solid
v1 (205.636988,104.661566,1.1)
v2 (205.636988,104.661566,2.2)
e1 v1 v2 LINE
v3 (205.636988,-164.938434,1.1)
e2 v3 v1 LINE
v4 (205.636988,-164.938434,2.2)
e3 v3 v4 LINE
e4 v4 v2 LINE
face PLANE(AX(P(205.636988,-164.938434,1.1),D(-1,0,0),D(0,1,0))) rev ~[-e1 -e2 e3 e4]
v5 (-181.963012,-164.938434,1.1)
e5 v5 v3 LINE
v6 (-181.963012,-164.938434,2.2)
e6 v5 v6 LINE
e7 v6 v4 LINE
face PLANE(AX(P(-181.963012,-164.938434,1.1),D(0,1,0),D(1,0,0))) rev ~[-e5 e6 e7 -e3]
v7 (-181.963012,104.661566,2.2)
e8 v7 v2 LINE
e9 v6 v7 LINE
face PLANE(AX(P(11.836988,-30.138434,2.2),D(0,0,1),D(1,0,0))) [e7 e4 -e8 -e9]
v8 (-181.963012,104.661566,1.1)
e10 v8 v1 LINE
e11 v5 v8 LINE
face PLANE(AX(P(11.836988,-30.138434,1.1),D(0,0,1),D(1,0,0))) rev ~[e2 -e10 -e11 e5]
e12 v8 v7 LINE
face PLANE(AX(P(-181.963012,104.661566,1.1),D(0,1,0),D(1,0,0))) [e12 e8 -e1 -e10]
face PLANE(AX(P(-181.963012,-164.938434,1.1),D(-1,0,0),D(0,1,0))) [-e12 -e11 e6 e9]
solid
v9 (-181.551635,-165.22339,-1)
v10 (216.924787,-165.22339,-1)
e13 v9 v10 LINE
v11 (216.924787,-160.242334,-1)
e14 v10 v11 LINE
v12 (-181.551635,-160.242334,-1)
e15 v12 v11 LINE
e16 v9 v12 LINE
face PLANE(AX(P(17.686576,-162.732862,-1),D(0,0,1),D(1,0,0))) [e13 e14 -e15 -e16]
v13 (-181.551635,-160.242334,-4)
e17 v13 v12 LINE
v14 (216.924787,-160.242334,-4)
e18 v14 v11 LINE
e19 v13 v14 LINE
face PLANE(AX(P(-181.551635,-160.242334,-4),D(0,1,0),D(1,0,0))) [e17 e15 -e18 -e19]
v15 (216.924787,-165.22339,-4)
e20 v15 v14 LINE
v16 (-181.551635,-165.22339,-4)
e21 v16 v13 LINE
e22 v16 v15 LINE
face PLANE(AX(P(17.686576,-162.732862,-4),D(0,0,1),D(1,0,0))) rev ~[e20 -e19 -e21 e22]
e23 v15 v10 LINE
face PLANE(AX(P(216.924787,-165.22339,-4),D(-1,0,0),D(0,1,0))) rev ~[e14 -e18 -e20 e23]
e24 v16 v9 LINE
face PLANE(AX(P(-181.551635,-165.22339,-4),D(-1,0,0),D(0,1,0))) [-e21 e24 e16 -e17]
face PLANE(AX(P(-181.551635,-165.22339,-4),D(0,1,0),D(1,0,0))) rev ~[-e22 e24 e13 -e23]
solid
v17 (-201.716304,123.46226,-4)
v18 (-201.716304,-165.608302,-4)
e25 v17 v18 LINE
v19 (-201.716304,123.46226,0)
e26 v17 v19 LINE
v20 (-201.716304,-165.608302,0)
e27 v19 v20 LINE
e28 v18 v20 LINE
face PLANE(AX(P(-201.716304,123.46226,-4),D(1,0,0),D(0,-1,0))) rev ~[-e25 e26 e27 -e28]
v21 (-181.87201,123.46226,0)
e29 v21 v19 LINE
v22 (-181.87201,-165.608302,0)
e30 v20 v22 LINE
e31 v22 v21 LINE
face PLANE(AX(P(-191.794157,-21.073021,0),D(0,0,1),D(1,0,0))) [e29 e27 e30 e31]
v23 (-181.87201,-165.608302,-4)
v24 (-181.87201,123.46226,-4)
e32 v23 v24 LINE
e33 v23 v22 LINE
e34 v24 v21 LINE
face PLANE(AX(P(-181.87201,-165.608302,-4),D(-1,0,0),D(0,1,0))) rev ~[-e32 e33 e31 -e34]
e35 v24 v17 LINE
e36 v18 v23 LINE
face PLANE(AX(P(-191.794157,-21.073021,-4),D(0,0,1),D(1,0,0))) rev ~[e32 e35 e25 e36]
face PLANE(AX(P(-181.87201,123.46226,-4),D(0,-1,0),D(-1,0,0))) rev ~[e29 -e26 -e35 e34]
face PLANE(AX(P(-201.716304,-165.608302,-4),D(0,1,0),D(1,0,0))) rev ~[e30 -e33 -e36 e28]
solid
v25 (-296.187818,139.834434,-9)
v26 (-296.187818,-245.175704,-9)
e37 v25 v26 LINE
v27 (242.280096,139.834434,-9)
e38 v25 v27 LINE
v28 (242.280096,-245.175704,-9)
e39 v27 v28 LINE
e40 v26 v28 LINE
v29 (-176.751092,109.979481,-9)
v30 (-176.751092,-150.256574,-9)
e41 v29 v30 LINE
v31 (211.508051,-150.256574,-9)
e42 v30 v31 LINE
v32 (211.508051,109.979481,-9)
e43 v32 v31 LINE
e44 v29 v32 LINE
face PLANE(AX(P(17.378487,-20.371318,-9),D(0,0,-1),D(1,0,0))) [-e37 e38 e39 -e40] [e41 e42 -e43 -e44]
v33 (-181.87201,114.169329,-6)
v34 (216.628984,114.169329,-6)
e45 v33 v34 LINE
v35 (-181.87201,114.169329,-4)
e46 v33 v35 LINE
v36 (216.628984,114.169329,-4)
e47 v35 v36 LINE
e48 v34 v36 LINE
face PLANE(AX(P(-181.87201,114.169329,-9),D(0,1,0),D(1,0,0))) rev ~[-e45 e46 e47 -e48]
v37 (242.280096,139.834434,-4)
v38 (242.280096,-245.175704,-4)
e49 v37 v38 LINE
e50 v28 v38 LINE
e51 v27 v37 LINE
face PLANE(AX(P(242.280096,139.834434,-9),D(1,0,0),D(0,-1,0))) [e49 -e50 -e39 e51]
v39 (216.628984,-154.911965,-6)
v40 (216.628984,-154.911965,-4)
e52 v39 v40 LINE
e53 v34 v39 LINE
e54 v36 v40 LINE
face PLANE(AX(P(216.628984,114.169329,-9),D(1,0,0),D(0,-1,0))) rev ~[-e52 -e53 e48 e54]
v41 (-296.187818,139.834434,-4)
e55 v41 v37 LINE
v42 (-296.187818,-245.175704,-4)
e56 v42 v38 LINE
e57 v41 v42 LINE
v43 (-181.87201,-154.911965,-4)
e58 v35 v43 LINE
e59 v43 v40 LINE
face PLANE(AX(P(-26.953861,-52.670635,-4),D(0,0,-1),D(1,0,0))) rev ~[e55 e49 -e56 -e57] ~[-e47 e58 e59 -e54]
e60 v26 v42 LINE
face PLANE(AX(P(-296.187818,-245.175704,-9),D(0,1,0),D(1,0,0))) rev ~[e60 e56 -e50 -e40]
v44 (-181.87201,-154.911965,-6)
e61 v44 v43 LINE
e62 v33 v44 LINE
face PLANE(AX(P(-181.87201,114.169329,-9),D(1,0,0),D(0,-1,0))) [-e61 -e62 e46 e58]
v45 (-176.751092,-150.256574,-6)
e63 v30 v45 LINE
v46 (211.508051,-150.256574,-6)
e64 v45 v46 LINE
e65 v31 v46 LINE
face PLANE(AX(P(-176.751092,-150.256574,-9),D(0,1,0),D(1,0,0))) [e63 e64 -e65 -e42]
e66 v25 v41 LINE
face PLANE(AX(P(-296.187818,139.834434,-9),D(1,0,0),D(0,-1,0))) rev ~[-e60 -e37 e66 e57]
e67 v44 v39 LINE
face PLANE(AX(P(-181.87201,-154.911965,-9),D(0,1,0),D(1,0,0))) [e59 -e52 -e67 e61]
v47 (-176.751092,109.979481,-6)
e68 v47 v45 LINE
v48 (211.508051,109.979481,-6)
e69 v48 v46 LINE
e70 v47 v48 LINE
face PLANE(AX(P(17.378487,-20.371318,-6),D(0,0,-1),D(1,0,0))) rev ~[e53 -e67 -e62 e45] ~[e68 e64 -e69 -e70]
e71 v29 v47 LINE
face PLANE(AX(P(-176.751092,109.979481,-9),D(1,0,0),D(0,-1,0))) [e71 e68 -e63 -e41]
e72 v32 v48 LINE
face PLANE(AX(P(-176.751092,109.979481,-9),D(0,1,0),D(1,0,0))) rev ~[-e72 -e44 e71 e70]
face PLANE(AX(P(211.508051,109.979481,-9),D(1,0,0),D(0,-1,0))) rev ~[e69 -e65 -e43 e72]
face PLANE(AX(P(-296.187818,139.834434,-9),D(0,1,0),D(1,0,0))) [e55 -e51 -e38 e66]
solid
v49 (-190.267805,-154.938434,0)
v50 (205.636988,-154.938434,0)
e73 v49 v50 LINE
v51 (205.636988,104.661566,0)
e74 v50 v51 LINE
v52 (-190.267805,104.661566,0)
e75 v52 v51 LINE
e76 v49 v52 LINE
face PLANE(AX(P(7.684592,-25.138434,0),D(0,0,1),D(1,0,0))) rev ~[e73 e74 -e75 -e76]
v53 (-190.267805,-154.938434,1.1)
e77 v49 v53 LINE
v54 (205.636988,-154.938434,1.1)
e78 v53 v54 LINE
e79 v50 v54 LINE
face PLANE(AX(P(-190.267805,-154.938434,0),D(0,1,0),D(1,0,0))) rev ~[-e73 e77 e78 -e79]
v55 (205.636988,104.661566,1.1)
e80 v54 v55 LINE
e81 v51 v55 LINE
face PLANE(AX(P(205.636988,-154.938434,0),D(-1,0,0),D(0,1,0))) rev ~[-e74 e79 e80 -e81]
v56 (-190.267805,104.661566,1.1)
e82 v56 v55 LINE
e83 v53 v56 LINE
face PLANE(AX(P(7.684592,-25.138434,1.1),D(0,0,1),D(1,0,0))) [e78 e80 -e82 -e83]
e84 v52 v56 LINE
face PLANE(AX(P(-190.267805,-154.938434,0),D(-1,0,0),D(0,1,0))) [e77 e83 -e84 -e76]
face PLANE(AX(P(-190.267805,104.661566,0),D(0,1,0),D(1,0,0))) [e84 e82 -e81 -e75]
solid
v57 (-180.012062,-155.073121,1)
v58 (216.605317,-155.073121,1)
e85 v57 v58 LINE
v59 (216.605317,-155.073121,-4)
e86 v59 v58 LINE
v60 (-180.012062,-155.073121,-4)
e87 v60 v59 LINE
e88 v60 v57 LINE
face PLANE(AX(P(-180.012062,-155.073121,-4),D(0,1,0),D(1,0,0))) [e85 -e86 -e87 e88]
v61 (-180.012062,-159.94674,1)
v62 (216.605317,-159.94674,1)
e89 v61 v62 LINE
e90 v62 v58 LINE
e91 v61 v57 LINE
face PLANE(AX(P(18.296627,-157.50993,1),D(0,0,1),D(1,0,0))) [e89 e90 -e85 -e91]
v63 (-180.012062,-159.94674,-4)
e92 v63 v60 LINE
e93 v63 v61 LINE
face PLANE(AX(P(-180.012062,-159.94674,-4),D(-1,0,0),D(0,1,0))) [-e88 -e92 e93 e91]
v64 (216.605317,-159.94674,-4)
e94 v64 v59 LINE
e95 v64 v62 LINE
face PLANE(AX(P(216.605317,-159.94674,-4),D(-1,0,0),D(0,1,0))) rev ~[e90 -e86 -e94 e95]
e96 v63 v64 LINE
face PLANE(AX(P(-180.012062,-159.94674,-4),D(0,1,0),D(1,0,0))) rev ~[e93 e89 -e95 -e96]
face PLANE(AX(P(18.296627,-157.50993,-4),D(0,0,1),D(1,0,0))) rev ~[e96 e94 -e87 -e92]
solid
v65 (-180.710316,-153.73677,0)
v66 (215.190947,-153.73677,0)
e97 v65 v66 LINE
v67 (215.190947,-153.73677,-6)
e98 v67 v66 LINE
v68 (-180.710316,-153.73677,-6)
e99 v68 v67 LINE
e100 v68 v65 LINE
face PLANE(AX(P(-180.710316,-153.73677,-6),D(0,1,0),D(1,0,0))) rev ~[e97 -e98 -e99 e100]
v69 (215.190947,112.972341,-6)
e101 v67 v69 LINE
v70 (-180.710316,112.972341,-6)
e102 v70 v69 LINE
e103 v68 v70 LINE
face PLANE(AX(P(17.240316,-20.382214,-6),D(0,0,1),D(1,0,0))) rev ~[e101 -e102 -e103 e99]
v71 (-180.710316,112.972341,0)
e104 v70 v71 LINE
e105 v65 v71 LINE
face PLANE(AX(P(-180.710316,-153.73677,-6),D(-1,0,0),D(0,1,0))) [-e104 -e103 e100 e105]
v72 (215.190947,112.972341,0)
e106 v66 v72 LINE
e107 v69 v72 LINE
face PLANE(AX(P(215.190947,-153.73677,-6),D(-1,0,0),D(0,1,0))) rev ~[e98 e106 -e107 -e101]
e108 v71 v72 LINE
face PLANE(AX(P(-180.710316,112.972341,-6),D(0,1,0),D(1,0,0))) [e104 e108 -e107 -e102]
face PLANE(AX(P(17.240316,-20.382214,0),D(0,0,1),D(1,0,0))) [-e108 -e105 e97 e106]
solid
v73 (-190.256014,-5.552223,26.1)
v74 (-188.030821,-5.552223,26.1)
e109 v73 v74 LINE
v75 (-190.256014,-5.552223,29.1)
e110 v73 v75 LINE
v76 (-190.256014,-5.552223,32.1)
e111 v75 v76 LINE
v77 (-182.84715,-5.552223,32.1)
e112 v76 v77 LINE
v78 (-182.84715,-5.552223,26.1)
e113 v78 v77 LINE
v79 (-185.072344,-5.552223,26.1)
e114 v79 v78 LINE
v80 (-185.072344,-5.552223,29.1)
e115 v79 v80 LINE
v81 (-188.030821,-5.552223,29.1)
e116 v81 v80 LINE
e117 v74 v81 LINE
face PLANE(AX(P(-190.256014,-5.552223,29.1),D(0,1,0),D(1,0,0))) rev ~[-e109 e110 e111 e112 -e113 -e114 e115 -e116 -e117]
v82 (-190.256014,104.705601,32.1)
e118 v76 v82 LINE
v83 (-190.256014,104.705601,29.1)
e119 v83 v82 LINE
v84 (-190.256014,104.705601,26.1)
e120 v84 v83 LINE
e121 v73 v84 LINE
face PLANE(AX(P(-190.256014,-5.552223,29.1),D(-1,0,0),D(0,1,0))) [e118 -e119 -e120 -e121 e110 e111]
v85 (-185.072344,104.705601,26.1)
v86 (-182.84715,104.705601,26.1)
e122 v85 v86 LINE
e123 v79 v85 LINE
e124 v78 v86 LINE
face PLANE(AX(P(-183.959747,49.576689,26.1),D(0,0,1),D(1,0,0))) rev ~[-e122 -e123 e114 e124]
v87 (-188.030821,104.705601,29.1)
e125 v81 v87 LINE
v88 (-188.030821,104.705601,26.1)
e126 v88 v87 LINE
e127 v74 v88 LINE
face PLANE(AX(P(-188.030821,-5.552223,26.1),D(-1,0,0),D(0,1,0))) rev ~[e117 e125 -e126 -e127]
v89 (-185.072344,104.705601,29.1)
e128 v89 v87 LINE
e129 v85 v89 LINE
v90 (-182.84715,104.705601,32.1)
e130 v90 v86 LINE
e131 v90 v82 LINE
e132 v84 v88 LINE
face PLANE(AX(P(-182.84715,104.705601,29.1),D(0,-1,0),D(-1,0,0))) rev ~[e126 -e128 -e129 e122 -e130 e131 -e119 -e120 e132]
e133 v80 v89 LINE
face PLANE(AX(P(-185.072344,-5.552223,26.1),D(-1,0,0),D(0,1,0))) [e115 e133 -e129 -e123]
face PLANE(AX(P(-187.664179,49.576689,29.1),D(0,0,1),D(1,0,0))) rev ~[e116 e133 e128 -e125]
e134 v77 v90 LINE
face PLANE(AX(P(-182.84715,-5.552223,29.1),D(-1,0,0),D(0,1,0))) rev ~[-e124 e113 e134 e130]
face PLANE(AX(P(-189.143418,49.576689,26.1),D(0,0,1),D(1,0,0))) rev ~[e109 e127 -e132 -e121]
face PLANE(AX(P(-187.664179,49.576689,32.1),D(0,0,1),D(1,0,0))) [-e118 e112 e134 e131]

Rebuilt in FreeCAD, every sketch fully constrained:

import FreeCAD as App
import Part
import Sketcher
Q = App.Units.Quantity


def add_polygon(sketch, points):
    """Adds a closed chain of lines whose ends are joined by coincident constraints."""
    first, n = sketch.GeometryCount, len(points)
    for a, b in zip(points, points[1:] + points[:1]):
        sketch.addGeometry(Part.LineSegment(App.Vector(*a, 0), App.Vector(*b, 0)), False)
    for i in range(n):
        sketch.addConstraint(Sketcher.Constraint("Coincident", first + i, 2, first + (i + 1) % n, 1))

doc = App.newDocument("Part")
params = doc.addObject("Spreadsheet::Sheet", "Params")
for row, (alias, value) in enumerate([
    ("sketch1_height", "259.6 mm"),
    ("pad1_length", "1.1 mm"),
    ("sketch2_width", "387.6 mm"),
    ("sketch2_height", "269.6 mm"),
    ("pad2_length", "1.1 mm"),
    ("pad3_length", "5 mm"),
    ("pad4_length", "3 mm"),
    ("pad5_length", "4 mm"),
    ("pad6_length", "3 mm"),
    ("pad7_length", "6 mm"),
    ("pad8_length", "5 mm"),
    ("pad9_length", "3 mm"),
    ("pad10_length", "3 mm"),
    ("pad11_length", "3 mm"),
], start=1):
    params.set(f"A{row}", alias)
    params.set(f"B{row}", "=" + value)
    params.setAlias(f"B{row}", alias)

body = doc.addObject("PartDesign::Body", "Body")

# Sketch on XY plane
sketch1 = body.newObject("Sketcher::SketchObject", "Sketch")
sketch1.AttachmentSupport = (doc.getObject("XY_Plane"), [""])
sketch1.MapMode = "FlatFace"
add_polygon(sketch1, [(-190, 105), (-190, -155), (206, -155), (206, 105)])  # lines 0-3
sketch1.addConstraint([
    Sketcher.Constraint("Vertical", 0),
    Sketcher.Constraint("Horizontal", 1),
    Sketcher.Constraint("Vertical", 2),
    Sketcher.Constraint("Horizontal", 3),
    Sketcher.Constraint("DistanceY", 0, 2, 0, 1, Q("259.6 mm")),
    Sketcher.Constraint("DistanceX", 1, 1, 1, 2, Q("395.904793 mm")),
    Sketcher.Constraint("DistanceX", -1, 1, 1, 2, Q("205.636988 mm")),
    Sketcher.Constraint("DistanceY", 0, 2, -1, 1, Q("154.938434 mm")),
])
sketch1.setExpression("Constraints[8]", "Params.sketch1_height")
pad1 = body.newObject("PartDesign::Pad", "Pad")
pad1.Profile = sketch1
pad1.setExpression("Length", "Params.pad1_length")
body2 = doc.addObject("PartDesign::Body", "Body001")

# Sketch on XY plane
sketch2 = body2.newObject("Sketcher::SketchObject", "Sketch001")
sketch2.AttachmentSupport = (doc.getObject("XY_Plane001"), [""])
sketch2.MapMode = "FlatFace"
sketch2.AttachmentOffset = App.Placement(App.Vector(0, 0, 1.1), App.Rotation())
add_polygon(sketch2, [(-182, 105), (-182, -165), (206, -165), (206, 105)])  # lines 0-3
sketch2.addConstraint([
    Sketcher.Constraint("Vertical", 0),
    Sketcher.Constraint("Horizontal", 1),
    Sketcher.Constraint("Vertical", 2),
    Sketcher.Constraint("Horizontal", 3),
    Sketcher.Constraint("DistanceX", 1, 1, 1, 2, Q("387.6 mm")),
    Sketcher.Constraint("DistanceY", 0, 2, 0, 1, Q("269.6 mm")),
    Sketcher.Constraint("DistanceX", 0, 2, -1, 1, Q("181.963012 mm")),
    Sketcher.Constraint("DistanceY", 0, 2, -1, 1, Q("164.938434 mm")),
])
sketch2.setExpression("Constraints[8]", "Params.sketch2_width")
sketch2.setExpression("Constraints[9]", "Params.sketch2_height")
pad2 = body2.newObject("PartDesign::Pad", "Pad001")
pad2.Profile = sketch2
pad2.setExpression("Length", "Params.pad2_length")
body3 = doc.addObject("PartDesign::Body", "Body002")

# Sketch on XY plane
sketch3 = body3.newObject("Sketcher::SketchObject", "Sketch002")
sketch3.AttachmentSupport = (doc.getObject("XY_Plane002"), [""])
sketch3.MapMode = "FlatFace"
sketch3.AttachmentOffset = App.Placement(App.Vector(0, 0, -9), App.Rotation())
add_polygon(sketch3, [(-296, -245), (-296, 140), (242, 140), (242, -245)])  # lines 0-3
add_polygon(sketch3, [(217, 114), (-182, 114), (-182, -155), (217, -155)])  # lines 4-7
sketch3.addConstraint([
    Sketcher.Constraint("Vertical", 0),
    Sketcher.Constraint("Horizontal", 1),
    Sketcher.Constraint("Vertical", 2),
    Sketcher.Constraint("Horizontal", 3),
    Sketcher.Constraint("Horizontal", 4),
    Sketcher.Constraint("Vertical", 5),
    Sketcher.Constraint("Horizontal", 6),
    Sketcher.Constraint("Vertical", 7),
    Sketcher.Constraint("DistanceY", 0, 1, 0, 2, Q("385.010138 mm")),
    Sketcher.Constraint("DistanceY", 5, 2, 0, 2, Q("294.746399 mm")),
    Sketcher.Constraint("DistanceX", 3, 2, 6, 2, Q("512.816802 mm")),
    Sketcher.Constraint("DistanceX", 1, 1, 1, 2, Q("538.467914 mm")),
    Sketcher.Constraint("DistanceX", 4, 2, 4, 1, Q("398.500994 mm")),
    Sketcher.Constraint("DistanceY", 5, 2, 5, 1, Q("269.081295 mm")),
    Sketcher.Constraint("DistanceX", 0, 2, -1, 1, Q("296.187818 mm")),
    Sketcher.Constraint("DistanceY", -1, 1, 4, 2, Q("114.169329 mm")),
])
pad3 = body3.newObject("PartDesign::Pad", "Pad002")
pad3.Profile = sketch3
pad3.setExpression("Length", "Params.pad3_length")

# Sketch on XY plane
sketch4 = body3.newObject("Sketcher::SketchObject", "Sketch003")
sketch4.AttachmentSupport = (doc.getObject("XY_Plane002"), [""])
sketch4.MapMode = "FlatFace"
sketch4.AttachmentOffset = App.Placement(App.Vector(0, 0, -9), App.Rotation())
add_polygon(sketch4, [(-182, -155), (-182, 114), (217, 114), (217, -155)])  # lines 0-3
add_polygon(sketch4, [(212, 110), (-177, 110), (-177, -150), (212, -150)])  # lines 4-7
sketch4.addConstraint([
    Sketcher.Constraint("Vertical", 0),
    Sketcher.Constraint("Horizontal", 1),
    Sketcher.Constraint("Vertical", 2),
    Sketcher.Constraint("Horizontal", 3),
    Sketcher.Constraint("Horizontal", 4),
    Sketcher.Constraint("Vertical", 5),
    Sketcher.Constraint("Horizontal", 6),
    Sketcher.Constraint("Vertical", 7),
    Sketcher.Constraint("DistanceX", 1, 1, 1, 2, Q("398.500994 mm")),
    Sketcher.Constraint("DistanceX", 4, 2, 4, 1, Q("388.259143 mm")),
    Sketcher.Constraint("DistanceY", 0, 1, 0, 2, Q("269.081295 mm")),
    Sketcher.Constraint("DistanceY", 5, 2, 5, 1, Q("260.236055 mm")),
    Sketcher.Constraint("DistanceX", 0, 2, -1, 1, Q("181.87201 mm")),
    Sketcher.Constraint("DistanceY", -1, 1, 0, 2, Q("114.169329 mm")),
    Sketcher.Constraint("DistanceY", -1, 1, 4, 2, Q("109.979481 mm")),
    Sketcher.Constraint("DistanceX", -1, 1, 6, 2, Q("211.508051 mm")),
])
pad4 = body3.newObject("PartDesign::Pad", "Pad003")
pad4.Profile = sketch4
pad4.setExpression("Length", "Params.pad4_length")
body4 = doc.addObject("PartDesign::Body", "Body003")

# Sketch on XY plane
sketch5 = body4.newObject("Sketcher::SketchObject", "Sketch004")
sketch5.AttachmentSupport = (doc.getObject("XY_Plane003"), [""])
sketch5.MapMode = "FlatFace"
sketch5.AttachmentOffset = App.Placement(App.Vector(0, 0, -4), App.Rotation())
add_polygon(sketch5, [(-202, -166), (-182, -166), (-182, 123), (-202, 123)])  # lines 0-3
sketch5.addConstraint([
    Sketcher.Constraint("Horizontal", 0),
    Sketcher.Constraint("Vertical", 1),
    Sketcher.Constraint("Horizontal", 2),
    Sketcher.Constraint("Vertical", 3),
    Sketcher.Constraint("DistanceY", 1, 1, 1, 2, Q("289.070562 mm")),
    Sketcher.Constraint("DistanceY", 0, 2, -1, 1, Q("165.608302 mm")),
    Sketcher.Constraint("DistanceX", 0, 1, 0, 2, Q("19.844294 mm")),
    Sketcher.Constraint("DistanceX", 0, 2, -1, 1, Q("181.87201 mm")),
])
pad5 = body4.newObject("PartDesign::Pad", "Pad004")
pad5.Profile = sketch5
pad5.setExpression("Length", "Params.pad5_length")
body5 = doc.addObject("PartDesign::Body", "Body004")

# Sketch on XY plane
sketch6 = body5.newObject("Sketcher::SketchObject", "Sketch005")
sketch6.AttachmentSupport = (doc.getObject("XY_Plane004"), [""])
sketch6.MapMode = "FlatFace"
sketch6.AttachmentOffset = App.Placement(App.Vector(0, 0, -4), App.Rotation())
add_polygon(sketch6, [(-181.6, -160.2), (-181.6, -165.2), (216.9, -165.2), (216.9, -160.2)])  # lines 0-3
sketch6.addConstraint([
    Sketcher.Constraint("Vertical", 0),
    Sketcher.Constraint("Horizontal", 1),
    Sketcher.Constraint("Vertical", 2),
    Sketcher.Constraint("Horizontal", 3),
    Sketcher.Constraint("DistanceX", 1, 1, 1, 2, Q("398.476422 mm")),
    Sketcher.Constraint("DistanceY", 0, 2, 0, 1, Q("4.981056 mm")),
    Sketcher.Constraint("DistanceY", 0, 2, -1, 1, Q("165.22339 mm")),
    Sketcher.Constraint("DistanceX", 0, 2, -1, 1, Q("181.551635 mm")),
])
pad6 = body5.newObject("PartDesign::Pad", "Pad005")
pad6.Profile = sketch6
pad6.setExpression("Length", "Params.pad6_length")
body6 = doc.addObject("PartDesign::Body", "Body005")

# Sketch on XY plane
sketch7 = body6.newObject("Sketcher::SketchObject", "Sketch006")
sketch7.AttachmentSupport = (doc.getObject("XY_Plane005"), [""])
sketch7.MapMode = "FlatFace"
sketch7.AttachmentOffset = App.Placement(App.Vector(0, 0, -6), App.Rotation())
add_polygon(sketch7, [(-181, 113), (-181, -154), (215, -154), (215, 113)])  # lines 0-3
sketch7.addConstraint([
    Sketcher.Constraint("Vertical", 0),
    Sketcher.Constraint("Horizontal", 1),
    Sketcher.Constraint("Vertical", 2),
    Sketcher.Constraint("Horizontal", 3),
    Sketcher.Constraint("DistanceY", 0, 2, 0, 1, Q("266.709112 mm")),
    Sketcher.Constraint("DistanceX", 1, 1, 1, 2, Q("395.901263 mm")),
    Sketcher.Constraint("DistanceY", 0, 2, -1, 1, Q("153.73677 mm")),
    Sketcher.Constraint("DistanceX", 0, 2, -1, 1, Q("180.710316 mm")),
])
pad7 = body6.newObject("PartDesign::Pad", "Pad006")
pad7.Profile = sketch7
pad7.setExpression("Length", "Params.pad7_length")
body7 = doc.addObject("PartDesign::Body", "Body006")

# Sketch on XY plane
sketch8 = body7.newObject("Sketcher::SketchObject", "Sketch007")
sketch8.AttachmentSupport = (doc.getObject("XY_Plane006"), [""])
sketch8.MapMode = "FlatFace"
sketch8.AttachmentOffset = App.Placement(App.Vector(0, 0, -4), App.Rotation())
add_polygon(sketch8, [(-180, -155.1), (-180, -159.9), (216.6, -159.9), (216.6, -155.1)])  # lines 0-3
sketch8.addConstraint([
    Sketcher.Constraint("Vertical", 0),
    Sketcher.Constraint("Horizontal", 1),
    Sketcher.Constraint("Vertical", 2),
    Sketcher.Constraint("Horizontal", 3),
    Sketcher.Constraint("DistanceX", 1, 1, 1, 2, Q("396.617379 mm")),
    Sketcher.Constraint("DistanceY", 0, 2, 0, 1, Q("4.873618 mm")),
    Sketcher.Constraint("DistanceY", 0, 2, -1, 1, Q("159.94674 mm")),
    Sketcher.Constraint("DistanceX", 0, 2, -1, 1, Q("180.012062 mm")),
])
pad8 = body7.newObject("PartDesign::Pad", "Pad007")
pad8.Profile = sketch8
pad8.setExpression("Length", "Params.pad8_length")
body8 = doc.addObject("PartDesign::Body", "Body007")

# Sketch on XY plane
sketch9 = body8.newObject("Sketcher::SketchObject", "Sketch008")
sketch9.AttachmentSupport = (doc.getObject("XY_Plane007"), [""])
sketch9.MapMode = "FlatFace"
sketch9.AttachmentOffset = App.Placement(App.Vector(0, 0, 26.1), App.Rotation())
add_polygon(sketch9, [(-185.1, 104.7), (-185.1, -5.6), (-182.8, -5.6), (-182.8, 104.7)])  # lines 0-3
sketch9.addConstraint([
    Sketcher.Constraint("Vertical", 0),
    Sketcher.Constraint("Horizontal", 1),
    Sketcher.Constraint("Vertical", 2),
    Sketcher.Constraint("Horizontal", 3),
    Sketcher.Constraint("DistanceY", -1, 1, 2, 2, Q("104.705601 mm")),
    Sketcher.Constraint("DistanceX", 1, 1, 1, 2, Q("2.225194 mm")),
    Sketcher.Constraint("DistanceY", 0, 2, 0, 1, Q("110.257824 mm")),
    Sketcher.Constraint("DistanceX", 1, 2, -1, 1, Q("182.84715 mm")),
])
pad9 = body8.newObject("PartDesign::Pad", "Pad008")
pad9.Profile = sketch9
pad9.setExpression("Length", "Params.pad9_length")
body9 = doc.addObject("PartDesign::Body", "Body008")

# Sketch on XY plane
sketch10 = body9.newObject("Sketcher::SketchObject", "Sketch009")
sketch10.AttachmentSupport = (doc.getObject("XY_Plane008"), [""])
sketch10.MapMode = "FlatFace"
sketch10.AttachmentOffset = App.Placement(App.Vector(0, 0, 26.1), App.Rotation())
add_polygon(sketch10, [(-190.3, 104.7), (-190.3, -5.6), (-188, -5.6), (-188, 104.7)])  # lines 0-3
sketch10.addConstraint([
    Sketcher.Constraint("Vertical", 0),
    Sketcher.Constraint("Horizontal", 1),
    Sketcher.Constraint("Vertical", 2),
    Sketcher.Constraint("Horizontal", 3),
    Sketcher.Constraint("DistanceY", -1, 1, 2, 2, Q("104.705601 mm")),
    Sketcher.Constraint("DistanceX", 1, 1, 1, 2, Q("2.225194 mm")),
    Sketcher.Constraint("DistanceY", 0, 2, 0, 1, Q("110.257824 mm")),
    Sketcher.Constraint("DistanceX", 1, 2, -1, 1, Q("188.030821 mm")),
])
pad10 = body9.newObject("PartDesign::Pad", "Pad009")
pad10.Profile = sketch10
pad10.setExpression("Length", "Params.pad10_length")
body8.AllowCompound = True
doc.recompute()

boolean = body8.newObject("PartDesign::Boolean", "Boolean")
boolean.Type = "Fuse"
boolean.addObjects([body9])

# Sketch on XY plane
sketch11 = body8.newObject("Sketcher::SketchObject", "Sketch010")
sketch11.AttachmentSupport = (doc.getObject("XY_Plane007"), [""])
sketch11.MapMode = "FlatFace"
sketch11.AttachmentOffset = App.Placement(App.Vector(0, 0, 29.1), App.Rotation())
add_polygon(sketch11, [(-190, 105), (-190, -6), (-183, -6), (-183, 105)])  # lines 0-3
sketch11.addConstraint([
    Sketcher.Constraint("Vertical", 0),
    Sketcher.Constraint("Horizontal", 1),
    Sketcher.Constraint("Vertical", 2),
    Sketcher.Constraint("Horizontal", 3),
    Sketcher.Constraint("DistanceY", -1, 1, 2, 2, Q("104.705601 mm")),
    Sketcher.Constraint("DistanceX", 1, 1, 1, 2, Q("7.408864 mm")),
    Sketcher.Constraint("DistanceY", 0, 2, 0, 1, Q("110.257824 mm")),
    Sketcher.Constraint("DistanceX", 1, 2, -1, 1, Q("182.84715 mm")),
])
pad11 = body8.newObject("PartDesign::Pad", "Pad010")
pad11.Profile = sketch11
pad11.setExpression("Length", "Params.pad11_length")

doc.recompute()
